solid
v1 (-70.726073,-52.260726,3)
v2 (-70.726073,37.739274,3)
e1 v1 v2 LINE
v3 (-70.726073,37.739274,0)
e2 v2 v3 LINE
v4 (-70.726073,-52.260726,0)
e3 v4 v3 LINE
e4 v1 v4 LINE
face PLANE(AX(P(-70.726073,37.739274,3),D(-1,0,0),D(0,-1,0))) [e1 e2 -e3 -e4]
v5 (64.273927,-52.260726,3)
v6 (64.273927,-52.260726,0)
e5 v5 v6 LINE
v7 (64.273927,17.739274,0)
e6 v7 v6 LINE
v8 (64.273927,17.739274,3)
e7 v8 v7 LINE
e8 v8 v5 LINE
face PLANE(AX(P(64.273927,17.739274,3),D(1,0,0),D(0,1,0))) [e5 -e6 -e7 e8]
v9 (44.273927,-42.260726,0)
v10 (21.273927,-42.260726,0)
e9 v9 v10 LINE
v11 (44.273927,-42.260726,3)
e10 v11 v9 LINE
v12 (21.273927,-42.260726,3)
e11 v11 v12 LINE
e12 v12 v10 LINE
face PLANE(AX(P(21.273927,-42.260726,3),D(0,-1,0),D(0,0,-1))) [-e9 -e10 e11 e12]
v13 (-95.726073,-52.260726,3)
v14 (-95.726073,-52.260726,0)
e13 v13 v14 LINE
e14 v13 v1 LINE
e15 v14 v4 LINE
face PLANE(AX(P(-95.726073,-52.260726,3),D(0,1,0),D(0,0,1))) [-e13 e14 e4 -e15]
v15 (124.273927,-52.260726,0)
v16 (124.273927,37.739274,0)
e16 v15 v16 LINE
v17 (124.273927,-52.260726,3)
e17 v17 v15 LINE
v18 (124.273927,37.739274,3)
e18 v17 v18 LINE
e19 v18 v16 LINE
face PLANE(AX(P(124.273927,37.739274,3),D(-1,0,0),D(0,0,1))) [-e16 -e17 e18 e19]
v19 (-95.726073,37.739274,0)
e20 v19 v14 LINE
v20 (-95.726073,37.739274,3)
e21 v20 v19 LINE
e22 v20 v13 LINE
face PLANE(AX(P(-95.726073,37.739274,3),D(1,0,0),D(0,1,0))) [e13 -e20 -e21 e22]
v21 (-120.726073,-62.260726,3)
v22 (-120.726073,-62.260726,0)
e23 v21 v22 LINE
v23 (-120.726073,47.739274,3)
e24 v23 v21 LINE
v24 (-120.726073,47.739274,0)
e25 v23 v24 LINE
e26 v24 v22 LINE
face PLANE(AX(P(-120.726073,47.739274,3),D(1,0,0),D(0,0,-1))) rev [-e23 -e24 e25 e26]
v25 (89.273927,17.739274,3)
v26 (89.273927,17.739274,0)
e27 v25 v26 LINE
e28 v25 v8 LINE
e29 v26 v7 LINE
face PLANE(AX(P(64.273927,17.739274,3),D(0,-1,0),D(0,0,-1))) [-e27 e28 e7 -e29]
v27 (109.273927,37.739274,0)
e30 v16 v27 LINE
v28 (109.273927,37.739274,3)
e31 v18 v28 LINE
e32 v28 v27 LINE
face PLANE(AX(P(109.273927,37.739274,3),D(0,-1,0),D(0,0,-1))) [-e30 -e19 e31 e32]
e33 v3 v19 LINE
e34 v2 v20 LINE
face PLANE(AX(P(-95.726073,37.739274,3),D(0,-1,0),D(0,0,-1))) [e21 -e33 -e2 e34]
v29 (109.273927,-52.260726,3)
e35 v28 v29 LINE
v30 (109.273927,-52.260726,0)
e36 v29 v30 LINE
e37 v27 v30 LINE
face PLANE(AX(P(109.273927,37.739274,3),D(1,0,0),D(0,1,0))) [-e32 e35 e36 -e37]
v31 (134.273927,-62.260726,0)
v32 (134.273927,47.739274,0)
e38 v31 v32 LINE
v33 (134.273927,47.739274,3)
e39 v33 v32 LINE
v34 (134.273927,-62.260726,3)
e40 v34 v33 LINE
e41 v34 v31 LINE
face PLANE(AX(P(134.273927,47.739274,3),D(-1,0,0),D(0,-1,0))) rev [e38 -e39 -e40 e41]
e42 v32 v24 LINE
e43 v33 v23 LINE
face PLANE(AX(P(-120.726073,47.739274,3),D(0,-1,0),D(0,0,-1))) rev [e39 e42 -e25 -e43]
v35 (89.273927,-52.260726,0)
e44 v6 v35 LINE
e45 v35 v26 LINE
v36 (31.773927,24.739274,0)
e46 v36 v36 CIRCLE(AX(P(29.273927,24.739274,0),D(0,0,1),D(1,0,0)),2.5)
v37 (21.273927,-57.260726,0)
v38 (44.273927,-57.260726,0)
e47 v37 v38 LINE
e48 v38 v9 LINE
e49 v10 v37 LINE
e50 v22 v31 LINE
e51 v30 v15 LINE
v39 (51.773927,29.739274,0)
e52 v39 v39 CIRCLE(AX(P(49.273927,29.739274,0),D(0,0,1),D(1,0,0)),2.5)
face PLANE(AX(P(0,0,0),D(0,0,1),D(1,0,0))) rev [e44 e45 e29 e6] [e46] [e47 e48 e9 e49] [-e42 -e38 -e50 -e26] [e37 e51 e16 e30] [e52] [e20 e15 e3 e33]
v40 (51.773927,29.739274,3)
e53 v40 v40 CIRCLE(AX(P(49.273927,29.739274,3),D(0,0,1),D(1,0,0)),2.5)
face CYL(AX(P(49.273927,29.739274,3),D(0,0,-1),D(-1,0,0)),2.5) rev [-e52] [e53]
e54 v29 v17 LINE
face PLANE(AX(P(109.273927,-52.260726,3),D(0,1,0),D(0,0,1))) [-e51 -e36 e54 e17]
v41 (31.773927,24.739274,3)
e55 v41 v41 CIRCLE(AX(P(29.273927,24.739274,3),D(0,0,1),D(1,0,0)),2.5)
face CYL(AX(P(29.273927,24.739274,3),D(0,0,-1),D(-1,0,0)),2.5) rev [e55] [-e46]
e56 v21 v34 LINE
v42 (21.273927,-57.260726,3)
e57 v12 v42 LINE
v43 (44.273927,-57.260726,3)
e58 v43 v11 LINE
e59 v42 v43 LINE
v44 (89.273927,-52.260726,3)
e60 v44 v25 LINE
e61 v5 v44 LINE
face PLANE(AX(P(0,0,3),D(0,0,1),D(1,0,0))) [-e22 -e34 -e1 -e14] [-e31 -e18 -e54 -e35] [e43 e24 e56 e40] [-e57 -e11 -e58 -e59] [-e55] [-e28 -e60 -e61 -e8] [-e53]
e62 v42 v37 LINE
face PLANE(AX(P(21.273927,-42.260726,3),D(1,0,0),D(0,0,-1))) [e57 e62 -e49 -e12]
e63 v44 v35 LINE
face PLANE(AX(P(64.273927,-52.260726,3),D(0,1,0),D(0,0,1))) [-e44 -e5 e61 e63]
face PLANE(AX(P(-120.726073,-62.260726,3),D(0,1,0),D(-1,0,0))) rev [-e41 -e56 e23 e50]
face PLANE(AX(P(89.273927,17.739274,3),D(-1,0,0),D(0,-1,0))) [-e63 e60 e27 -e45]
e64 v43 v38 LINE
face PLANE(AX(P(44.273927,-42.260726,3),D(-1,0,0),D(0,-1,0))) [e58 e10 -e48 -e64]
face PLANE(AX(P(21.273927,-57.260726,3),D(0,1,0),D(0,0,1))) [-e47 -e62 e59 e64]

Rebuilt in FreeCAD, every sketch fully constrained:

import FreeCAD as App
import Part
import Sketcher

V = App.Vector
Q = App.Units.Quantity

doc = App.newDocument("Part")
params = doc.addObject("Spreadsheet::Sheet", "Params")
for row, (alias, value) in enumerate([
    ("sketch1_diameter", "5 mm"),
    ("sketch1_width", "255 mm"),
    ("sketch1_width2", "23 mm"),
    ("sketch1_width3", "25 mm"),
    ("sketch1_width4", "15 mm"),
    ("pad1_length", "3 mm"),
], start=1):
    params.set(f"A{row}", alias)
    params.set(f"B{row}", "=" + value)
    params.setAlias(f"B{row}", alias)

body = doc.addObject("PartDesign::Body", "Body")

sketch1 = body.newObject("Sketcher::SketchObject", "Sketch")
sketch1.AttachmentSupport = (doc.getObject("XY_Plane"), [""])
sketch1.MapMode = "FlatFace"
sketch1.addGeometry([
    Part.LineSegment(V(-120.7, 47.7, 0), V(-120.7, -62.3, 0)),
    Part.LineSegment(V(-120.7, -62.3, 0), V(134.3, -62.3, 0)),
    Part.LineSegment(V(134.3, -62.3, 0), V(134.3, 47.7, 0)),
    Part.LineSegment(V(134.3, 47.7, 0), V(-120.7, 47.7, 0)),
    Part.LineSegment(V(44.3, -57.3, 0), V(21.3, -57.3, 0)),
    Part.LineSegment(V(21.3, -57.3, 0), V(21.3, -42.3, 0)),
    Part.LineSegment(V(21.3, -42.3, 0), V(44.3, -42.3, 0)),
    Part.LineSegment(V(44.3, -42.3, 0), V(44.3, -57.3, 0)),
    Part.LineSegment(V(89.3, -52.3, 0), V(64.3, -52.3, 0)),
    Part.LineSegment(V(64.3, -52.3, 0), V(64.3, 17.7, 0)),
    Part.LineSegment(V(64.3, 17.7, 0), V(89.3, 17.7, 0)),
    Part.LineSegment(V(89.3, 17.7, 0), V(89.3, -52.3, 0)),
    Part.LineSegment(V(-70.7, -52.3, 0), V(-95.7, -52.3, 0)),
    Part.LineSegment(V(-95.7, -52.3, 0), V(-95.7, 37.7, 0)),
    Part.LineSegment(V(-95.7, 37.7, 0), V(-70.7, 37.7, 0)),
    Part.LineSegment(V(-70.7, 37.7, 0), V(-70.7, -52.3, 0)),
    Part.LineSegment(V(124.3, -52.3, 0), V(109.3, -52.3, 0)),
    Part.LineSegment(V(109.3, -52.3, 0), V(109.3, 37.7, 0)),
    Part.LineSegment(V(109.3, 37.7, 0), V(124.3, 37.7, 0)),
    Part.LineSegment(V(124.3, 37.7, 0), V(124.3, -52.3, 0)),
    Part.Circle(V(29.3, 24.7, 0), V(0, 0, 1), 2.5),
    Part.Circle(V(49.3, 29.7, 0), V(0, 0, 1), 2.5),
], False)
sketch1.addConstraint([
    Sketcher.Constraint("Coincident", 0, 2, 1, 1),
    Sketcher.Constraint("Coincident", 1, 2, 2, 1),
    Sketcher.Constraint("Coincident", 2, 2, 3, 1),
    Sketcher.Constraint("Coincident", 3, 2, 0, 1),
    Sketcher.Constraint("Coincident", 4, 2, 5, 1),
    Sketcher.Constraint("Coincident", 5, 2, 6, 1),
    Sketcher.Constraint("Coincident", 6, 2, 7, 1),
    Sketcher.Constraint("Coincident", 7, 2, 4, 1),
    Sketcher.Constraint("Coincident", 8, 2, 9, 1),
    Sketcher.Constraint("Coincident", 9, 2, 10, 1),
    Sketcher.Constraint("Coincident", 10, 2, 11, 1),
    Sketcher.Constraint("Coincident", 11, 2, 8, 1),
    Sketcher.Constraint("Coincident", 12, 2, 13, 1),
    Sketcher.Constraint("Coincident", 13, 2, 14, 1),
    Sketcher.Constraint("Coincident", 14, 2, 15, 1),
    Sketcher.Constraint("Coincident", 15, 2, 12, 1),
    Sketcher.Constraint("Coincident", 16, 2, 17, 1),
    Sketcher.Constraint("Coincident", 17, 2, 18, 1),
    Sketcher.Constraint("Coincident", 18, 2, 19, 1),
    Sketcher.Constraint("Coincident", 19, 2, 16, 1),
    Sketcher.Constraint("Vertical", 0),
    Sketcher.Constraint("Horizontal", 1),
    Sketcher.Constraint("Vertical", 2),
    Sketcher.Constraint("Horizontal", 3),
    Sketcher.Constraint("Horizontal", 4),
    Sketcher.Constraint("Vertical", 5),
    Sketcher.Constraint("Horizontal", 6),
    Sketcher.Constraint("Vertical", 7),
    Sketcher.Constraint("Horizontal", 8),
    Sketcher.Constraint("Vertical", 9),
    Sketcher.Constraint("Horizontal", 10),
    Sketcher.Constraint("Vertical", 11),
    Sketcher.Constraint("Horizontal", 12),
    Sketcher.Constraint("Vertical", 13),
    Sketcher.Constraint("Horizontal", 14),
    Sketcher.Constraint("Vertical", 15),
    Sketcher.Constraint("Horizontal", 16),
    Sketcher.Constraint("Vertical", 17),
    Sketcher.Constraint("Horizontal", 18),
    Sketcher.Constraint("Vertical", 19),
    Sketcher.Constraint("Equal", 20, 21),
    Sketcher.Constraint("Horizontal", 11, 2, 12, 2),
    Sketcher.Constraint("Horizontal", 15, 2, 16, 2),
    Sketcher.Constraint("Horizontal", 14, 2, 17, 2),
    Sketcher.Constraint("Equal", 10, 12),
    Sketcher.Constraint("Equal", 18, 5),
    Sketcher.Constraint("Diameter", 20, Q("5 mm")),
    Sketcher.Constraint("DistanceX", 1, 1, 1, 2, Q("255 mm")),
    Sketcher.Constraint("DistanceX", 4, 2, 4, 1, Q("23 mm")),
    Sketcher.Constraint("DistanceX", 8, 2, 8, 1, Q("25 mm")),
    Sketcher.Constraint("DistanceX", 16, 2, 16, 1, Q("15 mm")),
    Sketcher.Constraint("DistanceY", 0, 2, 0, 1, Q("110 mm")),
    Sketcher.Constraint("DistanceY", 9, 1, 9, 2, Q("70 mm")),
    Sketcher.Constraint("DistanceY", 13, 1, 13, 2, Q("90 mm")),
    Sketcher.Constraint("DistanceX", 20, 3, 21, 3, Q("20 mm")),
    Sketcher.Constraint("DistanceY", 20, 3, 21, 3, Q("5 mm")),
    Sketcher.Constraint("DistanceX", 0, 2, 20, 3, Q("150 mm")),
    Sketcher.Constraint("DistanceY", 0, 2, 20, 3, Q("87 mm")),
    Sketcher.Constraint("DistanceX", 4, 2, 20, 3, Q("8 mm")),
    Sketcher.Constraint("DistanceY", 4, 2, 20, 3, Q("82 mm")),
    Sketcher.Constraint("DistanceX", 7, 2, 8, 2, Q("20 mm")),
    Sketcher.Constraint("DistanceY", 7, 2, 8, 2, Q("5 mm")),
    Sketcher.Constraint("DistanceX", 0, 2, 12, 2, Q("25 mm")),
    Sketcher.Constraint("DistanceX", 11, 2, 16, 2, Q("20 mm")),
    Sketcher.Constraint("DistanceX", -1, 1, 20, 3, Q("29.273927 mm")),
    Sketcher.Constraint("DistanceY", -1, 1, 20, 3, Q("24.739274 mm")),
])
sketch1.setExpression("Constraints[46]", "Params.sketch1_diameter")
sketch1.setExpression("Constraints[47]", "Params.sketch1_width")
sketch1.setExpression("Constraints[48]", "Params.sketch1_width2")
sketch1.setExpression("Constraints[49]", "Params.sketch1_width3")
sketch1.setExpression("Constraints[50]", "Params.sketch1_width4")
pad1 = body.newObject("PartDesign::Pad", "Pad")
pad1.Profile = sketch1
pad1.setExpression("Length", "Params.pad1_length")

doc.recompute()
